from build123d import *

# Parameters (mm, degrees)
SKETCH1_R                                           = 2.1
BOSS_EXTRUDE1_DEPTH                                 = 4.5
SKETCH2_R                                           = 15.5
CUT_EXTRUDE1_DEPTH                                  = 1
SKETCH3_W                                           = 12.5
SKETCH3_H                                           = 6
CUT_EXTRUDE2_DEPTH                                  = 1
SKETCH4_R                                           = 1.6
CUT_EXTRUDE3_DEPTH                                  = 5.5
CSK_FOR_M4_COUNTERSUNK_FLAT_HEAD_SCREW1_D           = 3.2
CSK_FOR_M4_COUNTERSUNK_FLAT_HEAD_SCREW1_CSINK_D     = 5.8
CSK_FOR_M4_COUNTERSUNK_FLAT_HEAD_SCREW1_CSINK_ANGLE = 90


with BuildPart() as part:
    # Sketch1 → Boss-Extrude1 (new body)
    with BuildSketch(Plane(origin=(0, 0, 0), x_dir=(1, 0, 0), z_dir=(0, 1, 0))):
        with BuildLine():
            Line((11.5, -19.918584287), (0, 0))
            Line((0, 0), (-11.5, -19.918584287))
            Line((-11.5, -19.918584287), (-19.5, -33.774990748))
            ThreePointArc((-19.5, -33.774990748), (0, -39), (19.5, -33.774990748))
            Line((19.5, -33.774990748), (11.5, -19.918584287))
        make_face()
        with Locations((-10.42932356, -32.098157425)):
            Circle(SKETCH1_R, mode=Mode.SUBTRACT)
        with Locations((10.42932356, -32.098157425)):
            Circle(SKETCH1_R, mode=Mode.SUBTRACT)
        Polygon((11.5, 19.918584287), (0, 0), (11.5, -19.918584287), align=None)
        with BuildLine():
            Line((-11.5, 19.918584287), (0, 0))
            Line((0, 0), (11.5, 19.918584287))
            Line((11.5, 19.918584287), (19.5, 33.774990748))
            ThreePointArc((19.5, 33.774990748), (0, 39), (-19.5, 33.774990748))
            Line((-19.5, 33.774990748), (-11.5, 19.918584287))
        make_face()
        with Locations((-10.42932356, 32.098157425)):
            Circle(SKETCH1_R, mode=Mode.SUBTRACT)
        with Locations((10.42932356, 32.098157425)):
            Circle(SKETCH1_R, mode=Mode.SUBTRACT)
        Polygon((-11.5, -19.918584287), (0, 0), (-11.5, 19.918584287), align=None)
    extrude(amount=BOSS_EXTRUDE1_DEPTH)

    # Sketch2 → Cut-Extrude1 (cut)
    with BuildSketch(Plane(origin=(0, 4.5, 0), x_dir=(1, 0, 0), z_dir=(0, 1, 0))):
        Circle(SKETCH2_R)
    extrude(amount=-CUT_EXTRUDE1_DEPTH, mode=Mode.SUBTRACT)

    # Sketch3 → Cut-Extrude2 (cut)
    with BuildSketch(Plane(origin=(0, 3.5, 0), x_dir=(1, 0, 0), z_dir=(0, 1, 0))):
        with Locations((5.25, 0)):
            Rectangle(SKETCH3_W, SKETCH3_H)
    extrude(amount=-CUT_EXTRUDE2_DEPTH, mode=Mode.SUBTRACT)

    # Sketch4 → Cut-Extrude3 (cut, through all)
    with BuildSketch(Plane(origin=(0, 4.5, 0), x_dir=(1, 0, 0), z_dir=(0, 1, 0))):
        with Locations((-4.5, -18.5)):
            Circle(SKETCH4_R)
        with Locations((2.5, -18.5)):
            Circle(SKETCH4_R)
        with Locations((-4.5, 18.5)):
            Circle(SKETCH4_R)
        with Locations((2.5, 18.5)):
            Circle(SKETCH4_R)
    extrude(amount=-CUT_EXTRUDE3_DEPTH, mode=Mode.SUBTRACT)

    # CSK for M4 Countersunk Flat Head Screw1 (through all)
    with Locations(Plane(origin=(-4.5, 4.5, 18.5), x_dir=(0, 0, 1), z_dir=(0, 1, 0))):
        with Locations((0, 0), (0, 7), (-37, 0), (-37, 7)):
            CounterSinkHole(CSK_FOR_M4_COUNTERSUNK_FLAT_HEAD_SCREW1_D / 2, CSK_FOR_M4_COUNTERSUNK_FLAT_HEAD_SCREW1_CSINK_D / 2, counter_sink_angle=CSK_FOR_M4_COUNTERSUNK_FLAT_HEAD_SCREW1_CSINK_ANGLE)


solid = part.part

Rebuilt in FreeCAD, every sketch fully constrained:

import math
import FreeCAD as App
import Part
import Sketcher
Q = App.Units.Quantity


def add_polygon(sketch, points):
    """Adds a closed chain of lines whose ends are joined by coincident constraints."""
    first, n = sketch.GeometryCount, len(points)
    for a, b in zip(points, points[1:] + points[:1]):
        sketch.addGeometry(Part.LineSegment(App.Vector(*a, 0), App.Vector(*b, 0)), False)
    for i in range(n):
        sketch.addConstraint(Sketcher.Constraint("Coincident", first + i, 2, first + (i + 1) % n, 1))

doc = App.newDocument("Part")
body = doc.addObject("PartDesign::Body", "Body")

# Sketch on XZ plane
sketch1 = doc.addObject("Sketcher::SketchObject", "Sketch")
body.addObject(sketch1)
sketch1.AttachmentSupport = (doc.XZ_Plane, [""])
sketch1.MapMode = "FlatFace"
sketch1.addGeometry([
    Part.LineSegment(App.Vector(19.5, 33.774991, 0), App.Vector(11.5, 19.918584, 0)),  # 0
    Part.LineSegment(App.Vector(11.5, 19.918584, 0), App.Vector(11.5, -19.918584, 0)),  # 1
    Part.LineSegment(App.Vector(11.5, -19.918584, 0), App.Vector(19.5, -33.774991, 0)),  # 2
    Part.ArcOfCircle(Part.Circle(App.Vector(0, 0, 0), App.Vector(0, 0, 1), 39), math.radians(-120), math.radians(-60)),  # 3
    Part.LineSegment(App.Vector(-19.5, -33.774991, 0), App.Vector(-11.5, -19.918584, 0)),  # 4
    Part.LineSegment(App.Vector(-11.5, -19.918584, 0), App.Vector(-11.5, 19.918584, 0)),  # 5
    Part.LineSegment(App.Vector(-11.5, 19.918584, 0), App.Vector(-19.5, 33.774991, 0)),  # 6
    Part.ArcOfCircle(Part.Circle(App.Vector(0, 0, 0), App.Vector(0, 0, 1), 39), math.radians(60), math.radians(120)),  # 7
    Part.Circle(App.Vector(-10.429324, 32.098157, 0), App.Vector(0, 0, 1), 2.1),  # 8
    Part.Circle(App.Vector(10.429324, 32.098157, 0), App.Vector(0, 0, 1), 2.1),  # 9
    Part.Circle(App.Vector(-10.429324, -32.098157, 0), App.Vector(0, 0, 1), 2.1),  # 10
    Part.Circle(App.Vector(10.429324, -32.098157, 0), App.Vector(0, 0, 1), 2.1),  # 11
], False)
sketch1.addConstraint([
    Sketcher.Constraint("Coincident", 0, 2, 1, 1),
    Sketcher.Constraint("Coincident", 1, 2, 2, 1),
    Sketcher.Constraint("Coincident", 2, 2, 3, 2),
    Sketcher.Constraint("Coincident", 3, 1, 4, 1),
    Sketcher.Constraint("Coincident", 4, 2, 5, 1),
    Sketcher.Constraint("Coincident", 5, 2, 6, 1),
    Sketcher.Constraint("Coincident", 6, 2, 7, 2),
    Sketcher.Constraint("Coincident", 7, 1, 0, 1),
    Sketcher.Constraint("Vertical", 1),
    Sketcher.Constraint("Vertical", 5),
    Sketcher.Constraint("Coincident", 3, 3, -1, 1),
    Sketcher.Constraint("Coincident", 7, 3, -1, 1),
    Sketcher.Constraint("Equal", 3, 7),
    Sketcher.Constraint("Equal", 8, 9),
    Sketcher.Constraint("Equal", 9, 10),
    Sketcher.Constraint("Equal", 10, 11),
    Sketcher.Constraint("Symmetric", 9, 3, 10, 3, -1, 1),
    Sketcher.Constraint("Symmetric", 8, 3, 11, 3, -1, 1),
    Sketcher.Constraint("Symmetric", 0, 2, 4, 2, -1, 1),
    Sketcher.Constraint("Symmetric", 8, 3, 9, 3, -2),
    Sketcher.Constraint("Parallel", 0, 4),
    Sketcher.Constraint("Parallel", 2, 6),
    Sketcher.Constraint("Horizontal", 2, 2, 3, 1),
    Sketcher.Constraint("Horizontal", 1, 2, 4, 2),
    Sketcher.Constraint("Horizontal", 0, 2, 5, 2),
    Sketcher.Constraint("Radius", 3, Q("39 mm")),
    Sketcher.Constraint("Diameter", 8, Q("4.2 mm")),
    Sketcher.Constraint("Angle", 0, Q("-120 deg")),
    Sketcher.Constraint("Distance", 0, Q("16 mm")),
    Sketcher.Constraint("DistanceX", 3, 1, 1, 2, Q("31 mm")),
    Sketcher.Constraint("DistanceY", 11, 3, 0, 2, Q("52.016742 mm")),
    Sketcher.Constraint("DistanceX", 8, 3, -1, 1, Q("10.429324 mm")),
])
pad1 = doc.addObject("PartDesign::Pad", "Pad")
body.addObject(pad1)
pad1.Profile = sketch1
pad1.Length = 4.5
pad1.Reversed = True

# Sketch on XZ plane
sketch2 = doc.addObject("Sketcher::SketchObject", "Sketch001")
body.addObject(sketch2)
sketch2.AttachmentSupport = (doc.XZ_Plane, [""])
sketch2.MapMode = "FlatFace"
sketch2.AttachmentOffset = App.Placement(App.Vector(0, 0, -4.5), App.Rotation())
sketch2.addGeometry(Part.Circle(App.Vector(0, 0, 0), App.Vector(0, 0, 1), 15.5), False)
sketch2.addConstraint([
    Sketcher.Constraint("Coincident", 0, 3, -1, 1),
    Sketcher.Constraint("Diameter", 0, Q("31 mm")),
])
pocket1 = doc.addObject("PartDesign::Pocket", "Pocket")
body.addObject(pocket1)
pocket1.Profile = sketch2
pocket1.Length = 1
pocket1.Reversed = True

# Sketch on XZ plane
sketch3 = doc.addObject("Sketcher::SketchObject", "Sketch002")
body.addObject(sketch3)
sketch3.AttachmentSupport = (doc.XZ_Plane, [""])
sketch3.MapMode = "FlatFace"
sketch3.AttachmentOffset = App.Placement(App.Vector(0, 0, -3.5), App.Rotation())
add_polygon(sketch3, [(-1, -3), (-1, 3), (11.5, 3), (11.5, -3)])  # lines 0-3
sketch3.addConstraint([
    Sketcher.Constraint("Vertical", 0),
    Sketcher.Constraint("Horizontal", 1),
    Sketcher.Constraint("Vertical", 2),
    Sketcher.Constraint("Horizontal", 3),
    Sketcher.Constraint("DistanceY", 0, 1, 0, 2, Q("6 mm")),
    Sketcher.Constraint("DistanceX", 1, 1, 1, 2, Q("12.5 mm")),
    Sketcher.Constraint("DistanceX", 0, 2, -1, 1, Q("1 mm")),
    Sketcher.Constraint("DistanceY", -1, 1, 0, 2, Q("3 mm")),
])
pocket2 = doc.addObject("PartDesign::Pocket", "Pocket001")
body.addObject(pocket2)
pocket2.Profile = sketch3
pocket2.Length = 1
pocket2.Reversed = True

# Sketch on XZ plane
sketch4 = doc.addObject("Sketcher::SketchObject", "Sketch003")
body.addObject(sketch4)
sketch4.AttachmentSupport = (doc.XZ_Plane, [""])
sketch4.MapMode = "FlatFace"
sketch4.AttachmentOffset = App.Placement(App.Vector(0, 0, -4.5), App.Rotation())
sketch4.addGeometry([
    Part.Circle(App.Vector(-4.5, 18.5, 0), App.Vector(0, 0, 1), 1.6),
    Part.Circle(App.Vector(2.5, 18.5, 0), App.Vector(0, 0, 1), 1.6),
    Part.Circle(App.Vector(-4.5, -18.5, 0), App.Vector(0, 0, 1), 1.6),
    Part.Circle(App.Vector(2.5, -18.5, 0), App.Vector(0, 0, 1), 1.6),
], False)
sketch4.addConstraint([
    Sketcher.Constraint("Equal", 0, 1),
    Sketcher.Constraint("Equal", 1, 2),
    Sketcher.Constraint("Equal", 2, 3),
    Sketcher.Constraint("Symmetric", 0, 3, 2, 3, -1),
    Sketcher.Constraint("Symmetric", 1, 3, 3, 3, -1),
    Sketcher.Constraint("Horizontal", 0, 3, 1, 3),
    Sketcher.Constraint("Diameter", 0, Q("3.2 mm")),
    Sketcher.Constraint("DistanceX", 0, 3, 1, 3, Q("7 mm")),
    Sketcher.Constraint("DistanceY", 2, 3, 0, 3, Q("37 mm")),
    Sketcher.Constraint("DistanceX", 0, 3, -1, 1, Q("4.5 mm")),
])
pocket3 = doc.addObject("PartDesign::Pocket", "Pocket002")
body.addObject(pocket3)
pocket3.Profile = sketch4
pocket3.Type = "ThroughAll"
pocket3.Reversed = True

# Sketch on XZ plane
sketch5 = doc.addObject("Sketcher::SketchObject", "Sketch004")
body.addObject(sketch5)
sketch5.AttachmentSupport = (doc.XZ_Plane, [""])
sketch5.MapMode = "FlatFace"
sketch5.AttachmentOffset = App.Placement(App.Vector(0, 0, -4.5), App.Rotation())
sketch5.addGeometry([
    Part.Circle(App.Vector(-4.5, 18.5, 0), App.Vector(0, 0, 1), 1.6),
    Part.Circle(App.Vector(2.5, 18.5, 0), App.Vector(0, 0, 1), 1.6),
    Part.Circle(App.Vector(-4.5, -18.5, 0), App.Vector(0, 0, 1), 1.6),
    Part.Circle(App.Vector(2.5, -18.5, 0), App.Vector(0, 0, 1), 1.6),
], False)
sketch5.addConstraint([
    Sketcher.Constraint("Equal", 0, 1),
    Sketcher.Constraint("Equal", 1, 2),
    Sketcher.Constraint("Equal", 2, 3),
    Sketcher.Constraint("Symmetric", 0, 3, 2, 3, -1),
    Sketcher.Constraint("Symmetric", 1, 3, 3, 3, -1),
    Sketcher.Constraint("Horizontal", 0, 3, 1, 3),
    Sketcher.Constraint("Diameter", 0, Q("3.2 mm")),
    Sketcher.Constraint("DistanceX", 0, 3, 1, 3, Q("7 mm")),
    Sketcher.Constraint("DistanceY", 2, 3, 0, 3, Q("37 mm")),
    Sketcher.Constraint("DistanceX", 0, 3, -1, 1, Q("4.5 mm")),
])
doc.recompute()
hole = doc.addObject("PartDesign::Hole", "Hole")
body.addObject(hole)
hole.Profile = sketch5
hole.ThreadType = "None"
hole.Diameter = 3.2
hole.DepthType = "ThroughAll"
hole.HoleCutType = "Countersink"
hole.HoleCutDiameter = 5.8
hole.HoleCutCountersinkAngle = 90
hole.Reversed = True

doc.recompute()
